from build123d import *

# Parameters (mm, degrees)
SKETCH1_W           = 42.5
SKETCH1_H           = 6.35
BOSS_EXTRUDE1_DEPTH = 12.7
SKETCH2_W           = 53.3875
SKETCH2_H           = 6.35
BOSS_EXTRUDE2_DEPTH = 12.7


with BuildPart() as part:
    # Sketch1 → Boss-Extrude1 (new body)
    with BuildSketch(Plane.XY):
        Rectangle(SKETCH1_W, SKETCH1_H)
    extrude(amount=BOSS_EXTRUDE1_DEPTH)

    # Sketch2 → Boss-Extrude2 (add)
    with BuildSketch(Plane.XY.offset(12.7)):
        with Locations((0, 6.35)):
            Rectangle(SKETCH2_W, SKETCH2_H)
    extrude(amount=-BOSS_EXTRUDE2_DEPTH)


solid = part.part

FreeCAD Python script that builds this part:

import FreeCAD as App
import Part
import Sketcher
from FreeCAD import Vector
Q = App.Units.Quantity


def add_polygon(sketch, points):
    """Adds a closed chain of lines whose ends are joined by coincident constraints."""
    first, n = sketch.GeometryCount, len(points)
    for a, b in zip(points, points[1:] + points[:1]):
        sketch.addGeometry(Part.LineSegment(App.Vector(*a, 0), App.Vector(*b, 0)), False)
    for i in range(n):
        sketch.addConstraint(Sketcher.Constraint("Coincident", first + i, 2, first + (i + 1) % n, 1))

doc = App.newDocument("Part")
body = doc.addObject("PartDesign::Body", "Body")

# Sketch on XY plane
sketch1 = body.newObject("Sketcher::SketchObject", "Sketch")
sketch1.AttachmentSupport = (doc.getObject("XY_Plane"), [""])
sketch1.MapMode = "FlatFace"
add_polygon(sketch1, [(-21, 3), (-21, -3), (21, -3), (21, 3)])  # lines 0-3
sketch1.addConstraint(Sketcher.Constraint("Vertical", 0))
sketch1.addConstraint(Sketcher.Constraint("Horizontal", 1))
sketch1.addConstraint(Sketcher.Constraint("Vertical", 2))
sketch1.addConstraint(Sketcher.Constraint("Horizontal", 3))
sketch1.addConstraint(Sketcher.Constraint("Symmetric", 0, 2, 2, 2, -1, 1))
sketch1.addConstraint(Sketcher.Constraint("DistanceY", 0, 2, 0, 1, Q("0.25 in")))
sketch1.addConstraint(Sketcher.Constraint("DistanceX", 1, 1, 1, 2, 42.5))
pad1 = body.newObject("PartDesign::Pad", "Pad")
pad1.Profile = sketch1
pad1.Length = Q("0.5 in")

# Sketch on XY plane
sketch2 = body.newObject("Sketcher::SketchObject", "Sketch001")
sketch2.AttachmentSupport = (doc.getObject("XY_Plane"), [""])
sketch2.MapMode = "FlatFace"
sketch2.AttachmentOffset = App.Placement(Vector(0, 0, 0.5 * 25.4), App.Rotation())
add_polygon(sketch2, [(-27, 10), (-27, 3), (27, 3), (27, 10)])  # lines 0-3
sketch2.addConstraint(Sketcher.Constraint("Vertical", 0))
sketch2.addConstraint(Sketcher.Constraint("Horizontal", 1))
sketch2.addConstraint(Sketcher.Constraint("Vertical", 2))
sketch2.addConstraint(Sketcher.Constraint("Horizontal", 3))
sketch2.addConstraint(Sketcher.Constraint("DistanceY", 0, 2, 0, 1, Q("0.25 in")))
sketch2.addConstraint(Sketcher.Constraint("DistanceY", -1, 1, 0, 2, Q("0.125 in")))
sketch2.addConstraint(Sketcher.Constraint("DistanceX", 1, 1, 1, 2, 53.3875))
sketch2.addConstraint(Sketcher.Constraint("DistanceX", 0, 2, -1, 1, 26.69375))
pad2 = body.newObject("PartDesign::Pad", "Pad001")
pad2.Profile = sketch2
pad2.Length = Q("0.5 in")
pad2.Reversed = True

doc.recompute()
